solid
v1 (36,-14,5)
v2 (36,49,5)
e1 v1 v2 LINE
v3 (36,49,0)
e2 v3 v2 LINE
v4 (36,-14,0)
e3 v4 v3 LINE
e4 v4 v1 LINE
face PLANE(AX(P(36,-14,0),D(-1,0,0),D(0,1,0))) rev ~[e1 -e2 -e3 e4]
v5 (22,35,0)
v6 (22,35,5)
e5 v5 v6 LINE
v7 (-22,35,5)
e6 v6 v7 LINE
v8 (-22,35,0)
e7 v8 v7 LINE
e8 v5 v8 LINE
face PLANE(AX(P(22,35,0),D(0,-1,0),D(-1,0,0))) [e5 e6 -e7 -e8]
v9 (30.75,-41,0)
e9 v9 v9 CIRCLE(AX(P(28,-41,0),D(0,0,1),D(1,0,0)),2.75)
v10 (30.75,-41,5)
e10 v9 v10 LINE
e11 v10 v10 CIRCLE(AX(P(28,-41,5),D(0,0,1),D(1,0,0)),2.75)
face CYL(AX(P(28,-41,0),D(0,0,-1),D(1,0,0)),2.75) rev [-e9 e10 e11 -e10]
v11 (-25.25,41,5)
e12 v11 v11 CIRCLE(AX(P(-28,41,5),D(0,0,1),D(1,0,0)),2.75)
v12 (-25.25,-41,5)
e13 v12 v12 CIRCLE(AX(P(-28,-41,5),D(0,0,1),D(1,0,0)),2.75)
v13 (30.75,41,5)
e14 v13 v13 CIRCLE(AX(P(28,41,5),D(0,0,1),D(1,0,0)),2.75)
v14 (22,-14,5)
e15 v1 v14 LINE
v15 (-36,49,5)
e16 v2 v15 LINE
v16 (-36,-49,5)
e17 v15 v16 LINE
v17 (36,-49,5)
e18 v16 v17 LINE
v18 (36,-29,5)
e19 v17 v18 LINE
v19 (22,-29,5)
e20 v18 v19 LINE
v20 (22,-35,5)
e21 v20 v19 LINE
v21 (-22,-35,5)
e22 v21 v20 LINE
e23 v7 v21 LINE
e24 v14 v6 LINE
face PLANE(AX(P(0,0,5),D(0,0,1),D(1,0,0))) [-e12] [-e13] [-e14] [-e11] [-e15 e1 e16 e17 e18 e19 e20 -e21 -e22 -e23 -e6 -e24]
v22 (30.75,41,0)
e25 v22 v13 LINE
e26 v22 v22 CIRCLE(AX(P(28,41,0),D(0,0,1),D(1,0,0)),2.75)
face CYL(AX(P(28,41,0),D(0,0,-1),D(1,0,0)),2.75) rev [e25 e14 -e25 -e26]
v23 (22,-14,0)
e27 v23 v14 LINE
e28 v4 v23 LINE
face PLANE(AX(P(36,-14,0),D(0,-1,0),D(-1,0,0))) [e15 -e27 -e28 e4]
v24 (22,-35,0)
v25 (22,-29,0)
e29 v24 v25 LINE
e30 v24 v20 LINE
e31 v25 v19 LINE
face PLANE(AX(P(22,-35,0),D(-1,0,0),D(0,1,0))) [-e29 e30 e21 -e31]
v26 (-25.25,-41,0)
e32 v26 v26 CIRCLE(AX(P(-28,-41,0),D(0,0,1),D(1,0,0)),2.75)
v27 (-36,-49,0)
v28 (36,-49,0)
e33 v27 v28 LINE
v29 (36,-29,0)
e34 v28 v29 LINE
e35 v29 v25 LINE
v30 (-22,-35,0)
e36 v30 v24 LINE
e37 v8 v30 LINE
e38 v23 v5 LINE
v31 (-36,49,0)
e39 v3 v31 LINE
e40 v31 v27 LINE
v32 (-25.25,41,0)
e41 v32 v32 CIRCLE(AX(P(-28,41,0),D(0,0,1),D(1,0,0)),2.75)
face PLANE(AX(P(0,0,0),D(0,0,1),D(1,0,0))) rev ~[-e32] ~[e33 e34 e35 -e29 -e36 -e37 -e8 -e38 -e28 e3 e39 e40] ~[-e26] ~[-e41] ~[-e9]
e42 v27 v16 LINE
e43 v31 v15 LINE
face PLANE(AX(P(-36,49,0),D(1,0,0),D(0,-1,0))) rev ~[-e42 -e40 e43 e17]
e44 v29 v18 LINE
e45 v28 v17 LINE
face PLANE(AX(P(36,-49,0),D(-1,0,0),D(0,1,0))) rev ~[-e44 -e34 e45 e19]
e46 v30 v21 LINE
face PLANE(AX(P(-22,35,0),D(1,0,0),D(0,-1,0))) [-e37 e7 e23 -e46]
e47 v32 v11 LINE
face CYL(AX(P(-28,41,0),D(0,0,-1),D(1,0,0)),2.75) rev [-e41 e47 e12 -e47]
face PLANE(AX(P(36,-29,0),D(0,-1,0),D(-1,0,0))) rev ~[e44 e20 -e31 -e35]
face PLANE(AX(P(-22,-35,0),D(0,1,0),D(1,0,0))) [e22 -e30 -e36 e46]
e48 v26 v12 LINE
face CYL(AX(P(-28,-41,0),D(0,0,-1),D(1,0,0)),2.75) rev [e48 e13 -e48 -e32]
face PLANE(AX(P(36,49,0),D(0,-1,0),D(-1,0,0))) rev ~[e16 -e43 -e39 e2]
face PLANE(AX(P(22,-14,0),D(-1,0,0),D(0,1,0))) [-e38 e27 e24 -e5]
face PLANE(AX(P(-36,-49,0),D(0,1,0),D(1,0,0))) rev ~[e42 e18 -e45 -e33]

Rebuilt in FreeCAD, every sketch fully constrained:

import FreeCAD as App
import Part
import Sketcher
from FreeCAD import Vector
Q = App.Units.Quantity


def add_polygon(sketch, points):
    """Adds a closed chain of lines whose ends are joined by coincident constraints."""
    first, n = sketch.GeometryCount, len(points)
    for a, b in zip(points, points[1:] + points[:1]):
        sketch.addGeometry(Part.LineSegment(App.Vector(*a, 0), App.Vector(*b, 0)), False)
    for i in range(n):
        sketch.addConstraint(Sketcher.Constraint("Coincident", first + i, 2, first + (i + 1) % n, 1))

doc = App.newDocument("Part")
params = doc.addObject("Spreadsheet::Sheet", "Params")
for row, (alias, value) in enumerate([
    ("sketch1_height", "20 mm"),
    ("sketch1_diameter", "5.5 mm"),
    ("sketch1_width", "44 mm"),
    ("sketch1_width2", "14 mm"),
    ("sketch1_height2", "70 mm"),
    ("pad1_length", "5 mm"),
], start=1):
    params.set(f"A{row}", alias)
    params.set(f"B{row}", "=" + value)
    params.setAlias(f"B{row}", alias)

body = doc.addObject("PartDesign::Body", "Body")

# Sketch on XY plane
sketch1 = doc.addObject("Sketcher::SketchObject", "Sketch")
body.addObject(sketch1)
sketch1.AttachmentSupport = (doc.XY_Plane, [""])
sketch1.MapMode = "FlatFace"
add_polygon(sketch1, [(22, -35), (-22, -35), (-22, 35), (22, 35), (22, -14), (36, -14), (36, 49), (-36, 49), (-36, -49), (36, -49), (36, -29), (22, -29)])  # lines 0-11
sketch1.addGeometry(Part.Circle(Vector(-28, -41, 0), Vector(0, 0, 1), 2.8), False)  # 12
sketch1.addGeometry(Part.Circle(Vector(28, -41, 0), Vector(0, 0, 1), 2.8), False)  # 13
sketch1.addGeometry(Part.Circle(Vector(-28, 41, 0), Vector(0, 0, 1), 2.8), False)  # 14
sketch1.addGeometry(Part.Circle(Vector(28, 41, 0), Vector(0, 0, 1), 2.8), False)  # 15
sketch1.addConstraint(Sketcher.Constraint("Horizontal", 0))
sketch1.addConstraint(Sketcher.Constraint("Vertical", 1))
sketch1.addConstraint(Sketcher.Constraint("Horizontal", 2))
sketch1.addConstraint(Sketcher.Constraint("Vertical", 3))
sketch1.addConstraint(Sketcher.Constraint("Horizontal", 4))
sketch1.addConstraint(Sketcher.Constraint("Vertical", 5))
sketch1.addConstraint(Sketcher.Constraint("Horizontal", 6))
sketch1.addConstraint(Sketcher.Constraint("Vertical", 7))
sketch1.addConstraint(Sketcher.Constraint("Horizontal", 8))
sketch1.addConstraint(Sketcher.Constraint("Vertical", 9))
sketch1.addConstraint(Sketcher.Constraint("Horizontal", 10))
sketch1.addConstraint(Sketcher.Constraint("Vertical", 11))
sketch1.addConstraint(Sketcher.Constraint("Equal", 12, 13))
sketch1.addConstraint(Sketcher.Constraint("Equal", 13, 14))
sketch1.addConstraint(Sketcher.Constraint("Equal", 14, 15))
sketch1.addConstraint(Sketcher.Constraint("Symmetric", 13, 3, 14, 3, -1, 1))
sketch1.addConstraint(Sketcher.Constraint("Symmetric", 12, 3, 15, 3, -1, 1))
sketch1.addConstraint(Sketcher.Constraint("Symmetric", 0, 2, 2, 2, -1, 1))
sketch1.addConstraint(Sketcher.Constraint("Symmetric", 5, 2, 7, 2, -1, 1))
sketch1.addConstraint(Sketcher.Constraint("Symmetric", 12, 3, 13, 3, -2))
sketch1.addConstraint(Sketcher.Constraint("Vertical", 5, 2, 8, 2))
sketch1.addConstraint(Sketcher.Constraint("Vertical", 3, 2, 10, 2))
sketch1.addConstraint(Sketcher.Constraint("DistanceY", 9, 1, 9, 2, Q("20 mm")))
sketch1.addConstraint(Sketcher.Constraint("DistanceY", 9, 2, 4, 2, Q("15 mm")))
sketch1.addConstraint(Sketcher.Constraint("Diameter", 12, Q("5.5 mm")))
sketch1.addConstraint(Sketcher.Constraint("DistanceX", 0, 2, 0, 1, Q("44 mm")))
sketch1.addConstraint(Sketcher.Constraint("DistanceX", 4, 1, 4, 2, Q("14 mm")))
sketch1.addConstraint(Sketcher.Constraint("DistanceY", 1, 1, 1, 2, Q("70 mm")))
sketch1.addConstraint(Sketcher.Constraint("DistanceY", 3, 2, 3, 1, Q("49 mm")))
sketch1.addConstraint(Sketcher.Constraint("DistanceX", 12, 3, -1, 1, Q("28 mm")))
sketch1.addConstraint(Sketcher.Constraint("DistanceY", 12, 3, -1, 1, Q("41 mm")))
sketch1.setExpression("Constraints[34]", "Params.sketch1_height")
sketch1.setExpression("Constraints[36]", "Params.sketch1_diameter")
sketch1.setExpression("Constraints[37]", "Params.sketch1_width")
sketch1.setExpression("Constraints[38]", "Params.sketch1_width2")
sketch1.setExpression("Constraints[39]", "Params.sketch1_height2")
pad1 = doc.addObject("PartDesign::Pad", "Pad")
body.addObject(pad1)
pad1.Profile = sketch1
pad1.setExpression("Length", "Params.pad1_length")

doc.recompute()
